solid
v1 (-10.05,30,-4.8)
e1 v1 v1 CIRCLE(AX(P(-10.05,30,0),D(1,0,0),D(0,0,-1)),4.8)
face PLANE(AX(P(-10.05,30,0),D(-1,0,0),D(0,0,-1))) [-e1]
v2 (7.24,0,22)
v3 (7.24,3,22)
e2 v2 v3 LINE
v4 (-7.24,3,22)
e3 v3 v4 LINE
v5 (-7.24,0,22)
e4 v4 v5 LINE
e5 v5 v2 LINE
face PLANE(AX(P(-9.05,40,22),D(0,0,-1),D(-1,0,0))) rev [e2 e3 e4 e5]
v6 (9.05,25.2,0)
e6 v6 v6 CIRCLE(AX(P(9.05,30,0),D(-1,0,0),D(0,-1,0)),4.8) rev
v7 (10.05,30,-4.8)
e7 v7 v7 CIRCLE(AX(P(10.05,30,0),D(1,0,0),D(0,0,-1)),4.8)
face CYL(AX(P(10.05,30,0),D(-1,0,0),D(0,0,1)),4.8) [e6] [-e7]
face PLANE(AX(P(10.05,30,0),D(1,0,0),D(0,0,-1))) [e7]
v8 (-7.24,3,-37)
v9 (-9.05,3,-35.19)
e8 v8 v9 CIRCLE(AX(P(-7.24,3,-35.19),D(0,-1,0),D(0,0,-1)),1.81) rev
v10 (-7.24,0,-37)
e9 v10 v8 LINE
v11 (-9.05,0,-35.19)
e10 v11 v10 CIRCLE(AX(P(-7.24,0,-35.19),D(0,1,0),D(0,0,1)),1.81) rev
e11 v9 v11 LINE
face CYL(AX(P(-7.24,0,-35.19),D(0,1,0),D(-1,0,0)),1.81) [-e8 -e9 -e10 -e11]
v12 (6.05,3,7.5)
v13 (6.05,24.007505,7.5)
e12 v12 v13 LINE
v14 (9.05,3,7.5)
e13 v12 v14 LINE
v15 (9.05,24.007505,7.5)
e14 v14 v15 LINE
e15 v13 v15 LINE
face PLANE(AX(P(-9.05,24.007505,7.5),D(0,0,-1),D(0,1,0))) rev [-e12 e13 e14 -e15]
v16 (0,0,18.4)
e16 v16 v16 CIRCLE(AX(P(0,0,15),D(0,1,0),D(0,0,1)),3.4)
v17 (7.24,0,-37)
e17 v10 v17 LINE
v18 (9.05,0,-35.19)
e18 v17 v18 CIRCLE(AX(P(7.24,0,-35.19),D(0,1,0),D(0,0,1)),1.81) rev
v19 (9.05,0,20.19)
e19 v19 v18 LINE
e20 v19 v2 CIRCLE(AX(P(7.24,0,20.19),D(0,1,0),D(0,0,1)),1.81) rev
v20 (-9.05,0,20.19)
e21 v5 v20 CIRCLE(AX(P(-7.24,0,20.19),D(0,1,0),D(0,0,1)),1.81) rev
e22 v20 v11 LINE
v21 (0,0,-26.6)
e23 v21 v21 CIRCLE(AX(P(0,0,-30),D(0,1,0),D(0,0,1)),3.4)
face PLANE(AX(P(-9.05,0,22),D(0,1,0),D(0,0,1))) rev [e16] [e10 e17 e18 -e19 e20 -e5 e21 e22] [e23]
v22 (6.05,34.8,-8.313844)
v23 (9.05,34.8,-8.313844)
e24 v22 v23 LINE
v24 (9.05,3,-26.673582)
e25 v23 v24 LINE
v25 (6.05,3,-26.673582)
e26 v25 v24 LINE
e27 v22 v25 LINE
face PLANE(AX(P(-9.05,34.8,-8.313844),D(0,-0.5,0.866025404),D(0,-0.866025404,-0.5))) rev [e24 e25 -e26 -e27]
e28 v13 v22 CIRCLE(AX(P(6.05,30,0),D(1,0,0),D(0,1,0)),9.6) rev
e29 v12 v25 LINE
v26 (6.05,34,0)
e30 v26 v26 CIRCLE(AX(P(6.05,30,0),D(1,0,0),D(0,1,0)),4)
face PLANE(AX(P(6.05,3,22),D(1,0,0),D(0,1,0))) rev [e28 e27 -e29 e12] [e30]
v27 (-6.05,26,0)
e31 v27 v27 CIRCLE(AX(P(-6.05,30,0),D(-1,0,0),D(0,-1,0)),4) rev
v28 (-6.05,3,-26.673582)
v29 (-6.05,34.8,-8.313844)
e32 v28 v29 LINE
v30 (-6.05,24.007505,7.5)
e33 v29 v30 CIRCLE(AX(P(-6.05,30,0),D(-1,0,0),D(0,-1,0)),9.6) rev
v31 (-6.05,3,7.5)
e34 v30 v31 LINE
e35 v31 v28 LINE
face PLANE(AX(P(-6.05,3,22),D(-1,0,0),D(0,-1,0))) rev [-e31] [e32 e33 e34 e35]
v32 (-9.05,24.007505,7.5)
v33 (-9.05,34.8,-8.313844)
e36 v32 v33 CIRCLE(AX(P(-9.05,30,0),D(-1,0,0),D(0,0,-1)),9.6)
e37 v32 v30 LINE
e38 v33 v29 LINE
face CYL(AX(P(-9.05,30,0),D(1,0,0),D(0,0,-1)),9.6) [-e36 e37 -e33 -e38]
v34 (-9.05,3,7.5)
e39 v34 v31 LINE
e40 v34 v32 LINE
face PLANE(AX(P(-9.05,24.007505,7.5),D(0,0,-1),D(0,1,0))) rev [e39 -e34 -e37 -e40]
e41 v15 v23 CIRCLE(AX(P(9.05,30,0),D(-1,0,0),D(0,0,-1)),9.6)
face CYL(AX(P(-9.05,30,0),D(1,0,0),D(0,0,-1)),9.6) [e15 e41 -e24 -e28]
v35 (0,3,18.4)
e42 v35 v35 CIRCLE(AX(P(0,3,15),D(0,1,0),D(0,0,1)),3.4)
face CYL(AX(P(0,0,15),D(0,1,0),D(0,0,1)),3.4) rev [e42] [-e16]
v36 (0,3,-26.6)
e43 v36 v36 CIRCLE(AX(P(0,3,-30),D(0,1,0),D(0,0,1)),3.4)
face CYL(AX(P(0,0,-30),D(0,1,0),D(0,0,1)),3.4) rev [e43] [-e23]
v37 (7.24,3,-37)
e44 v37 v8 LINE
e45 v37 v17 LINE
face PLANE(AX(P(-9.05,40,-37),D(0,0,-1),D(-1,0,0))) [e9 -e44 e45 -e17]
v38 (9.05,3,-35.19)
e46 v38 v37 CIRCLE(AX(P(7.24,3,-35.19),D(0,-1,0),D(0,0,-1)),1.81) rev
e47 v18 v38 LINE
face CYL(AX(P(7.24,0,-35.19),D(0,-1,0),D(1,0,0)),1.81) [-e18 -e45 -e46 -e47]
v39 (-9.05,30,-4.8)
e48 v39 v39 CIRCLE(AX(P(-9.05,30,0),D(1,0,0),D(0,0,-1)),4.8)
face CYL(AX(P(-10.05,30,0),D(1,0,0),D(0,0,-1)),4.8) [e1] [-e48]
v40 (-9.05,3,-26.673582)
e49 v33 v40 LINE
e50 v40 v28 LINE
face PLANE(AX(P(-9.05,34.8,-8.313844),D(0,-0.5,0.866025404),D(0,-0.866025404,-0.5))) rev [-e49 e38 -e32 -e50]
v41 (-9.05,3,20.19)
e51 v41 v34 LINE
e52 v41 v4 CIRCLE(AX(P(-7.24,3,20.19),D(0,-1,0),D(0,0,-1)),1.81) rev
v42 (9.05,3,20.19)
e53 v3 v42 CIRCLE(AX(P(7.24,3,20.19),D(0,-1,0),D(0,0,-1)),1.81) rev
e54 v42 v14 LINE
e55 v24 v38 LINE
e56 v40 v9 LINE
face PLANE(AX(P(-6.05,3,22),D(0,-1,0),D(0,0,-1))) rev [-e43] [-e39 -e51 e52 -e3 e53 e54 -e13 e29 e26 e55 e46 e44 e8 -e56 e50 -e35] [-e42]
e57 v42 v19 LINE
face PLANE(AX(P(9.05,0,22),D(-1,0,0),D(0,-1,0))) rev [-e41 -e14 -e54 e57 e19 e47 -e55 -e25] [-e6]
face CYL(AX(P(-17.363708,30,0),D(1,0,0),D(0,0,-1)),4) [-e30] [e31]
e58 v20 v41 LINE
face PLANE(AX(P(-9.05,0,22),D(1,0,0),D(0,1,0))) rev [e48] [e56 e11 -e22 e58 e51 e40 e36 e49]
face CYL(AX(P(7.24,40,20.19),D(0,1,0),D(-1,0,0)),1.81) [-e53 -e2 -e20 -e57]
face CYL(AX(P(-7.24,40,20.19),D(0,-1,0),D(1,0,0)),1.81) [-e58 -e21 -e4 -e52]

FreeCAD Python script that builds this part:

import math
import FreeCAD as App
import Part
import Sketcher
Q = App.Units.Quantity


def edges_at(feature, points):
    """Names of the edges that pass closest to the given points."""
    edges = feature.Shape.Edges
    near = lambda p: min(range(len(edges)), key=lambda i: edges[i].distToShape(Part.Vertex(*p))[0])
    return sorted({f"Edge{near(p) + 1}" for p in points})


def add_polygon(sketch, points):
    """Adds a closed chain of lines whose ends are joined by coincident constraints."""
    first, n = sketch.GeometryCount, len(points)
    for a, b in zip(points, points[1:] + points[:1]):
        sketch.addGeometry(Part.LineSegment(App.Vector(*a, 0), App.Vector(*b, 0)), False)
    for i in range(n):
        sketch.addConstraint(Sketcher.Constraint("Coincident", first + i, 2, first + (i + 1) % n, 1))

doc = App.newDocument("Part")
body = doc.addObject("PartDesign::Body", "Body")

# Sketch on XY plane
sketch1 = body.newObject("Sketcher::SketchObject", "Sketch")
sketch1.AttachmentSupport = (doc.getObject("XY_Plane"), [""])
sketch1.MapMode = "FlatFace"
sketch1.AttachmentOffset = App.Placement(App.Vector(0, 0, -37), App.Rotation())
add_polygon(sketch1, [(-6.05, 3), (-6.05, 40), (-9.05, 40), (-9.05, 0), (9.05, 0), (9.05, 40), (6.05, 40), (6.05, 3)])  # lines 0-7
sketch1.addConstraint([
    Sketcher.Constraint("Vertical", 0),
    Sketcher.Constraint("Horizontal", 1),
    Sketcher.Constraint("Vertical", 2),
    Sketcher.Constraint("Horizontal", 3),
    Sketcher.Constraint("Vertical", 4),
    Sketcher.Constraint("Horizontal", 5),
    Sketcher.Constraint("Vertical", 6),
    Sketcher.Constraint("Horizontal", 7),
    Sketcher.Constraint("Symmetric", 2, 2, 3, 2, -1, 1),
    Sketcher.Constraint("Symmetric", 0, 2, 5, 2, -2),
    Sketcher.Constraint("DistanceX", 1, 2, 1, 1, Q("3 mm")),
    Sketcher.Constraint("DistanceY", 0, 1, 0, 2, Q("37 mm")),
    Sketcher.Constraint("DistanceY", 2, 2, 2, 1, Q("40 mm")),
    Sketcher.Constraint("DistanceX", 3, 1, 3, 2, Q("18.1 mm")),
])
pad1 = body.newObject("PartDesign::Pad", "Pad")
pad1.Profile = sketch1
pad1.Length = 59

# Sketch on YZ plane
sketch2 = body.newObject("Sketcher::SketchObject", "Sketch001")
sketch2.AttachmentSupport = (doc.getObject("YZ_Plane"), [""])
sketch2.MapMode = "FlatFace"
sketch2.AttachmentOffset = App.Placement(App.Vector(0, 0, 9.05), App.Rotation())
sketch2.addGeometry([
    Part.LineSegment(App.Vector(3, 7.5, 0), App.Vector(24.007505, 7.5, 0)),  # 0
    Part.ArcOfCircle(Part.Circle(App.Vector(30, 0, 0), App.Vector(0, 0, 1), 9.6), math.radians(-60), math.radians(128.624833)),  # 1
    Part.LineSegment(App.Vector(34.8, -8.313844, 0), App.Vector(3, -26.673582, 0)),  # 2
    Part.LineSegment(App.Vector(3, -26.673582, 0), App.Vector(3, -37, 0)),  # 3
    Part.LineSegment(App.Vector(3, -37, 0), App.Vector(40, -37, 0)),  # 4
    Part.LineSegment(App.Vector(40, -37, 0), App.Vector(40, 22, 0)),  # 5
    Part.LineSegment(App.Vector(40, 22, 0), App.Vector(3, 22, 0)),  # 6
    Part.LineSegment(App.Vector(3, 22, 0), App.Vector(3, 7.5, 0)),  # 7
], False)
sketch2.addConstraint([
    Sketcher.Constraint("Coincident", 0, 2, 1, 2),
    Sketcher.Constraint("Tangent", 1, 1, 2, 1),
    Sketcher.Constraint("Coincident", 2, 2, 3, 1),
    Sketcher.Constraint("Coincident", 3, 2, 4, 1),
    Sketcher.Constraint("Coincident", 4, 2, 5, 1),
    Sketcher.Constraint("Coincident", 5, 2, 6, 1),
    Sketcher.Constraint("Coincident", 6, 2, 7, 1),
    Sketcher.Constraint("Coincident", 7, 2, 0, 1),
    Sketcher.Constraint("Horizontal", 0),
    Sketcher.Constraint("Vertical", 3),
    Sketcher.Constraint("Horizontal", 4),
    Sketcher.Constraint("Vertical", 5),
    Sketcher.Constraint("Horizontal", 6),
    Sketcher.Constraint("Vertical", 7),
    Sketcher.Constraint("PointOnObject", 1, 3, -1),
    Sketcher.Constraint("Vertical", 3, 2, 6, 2),
    Sketcher.Constraint("Radius", 1, Q("9.6 mm")),
    Sketcher.Constraint("DistanceX", 4, 1, 4, 2, Q("37 mm")),
    Sketcher.Constraint("DistanceY", 5, 1, 5, 2, Q("59 mm")),
    Sketcher.Constraint("Angle", 2, Q("-150 deg")),
    Sketcher.Constraint("DistanceY", 7, 2, 7, 1, Q("14.5 mm")),
    Sketcher.Constraint("DistanceX", -1, 1, 1, 3, Q("30 mm")),
    Sketcher.Constraint("DistanceX", -1, 1, 2, 2, Q("3 mm")),
    Sketcher.Constraint("DistanceY", 3, 2, -1, 1, Q("37 mm")),
])
pocket1 = body.newObject("PartDesign::Pocket", "Pocket")
pocket1.Profile = sketch2
pocket1.Type = "ThroughAll"

# Sketch on YZ plane
sketch3 = body.newObject("Sketcher::SketchObject", "Sketch002")
sketch3.AttachmentSupport = (doc.getObject("YZ_Plane"), [""])
sketch3.MapMode = "FlatFace"
sketch3.AttachmentOffset = App.Placement(App.Vector(0, 0, 9.05), App.Rotation())
sketch3.addGeometry(Part.Circle(App.Vector(30, 0, 0), App.Vector(0, 0, 1), 4), False)
sketch3.addConstraint([
    Sketcher.Constraint("PointOnObject", 0, 3, -1),
    Sketcher.Constraint("Diameter", 0, Q("8 mm")),
    Sketcher.Constraint("DistanceX", -1, 1, 0, 3, Q("30 mm")),
])
pad2 = body.newObject("PartDesign::Pad", "Pad001")
pad2.Profile = sketch3
pad2.Length = 15.1
pad2.Reversed = True

# Sketch on YZ plane
sketch4 = body.newObject("Sketcher::SketchObject", "Sketch003")
sketch4.AttachmentSupport = (doc.getObject("YZ_Plane"), [""])
sketch4.MapMode = "FlatFace"
sketch4.AttachmentOffset = App.Placement(App.Vector(0, 0, 9.05), App.Rotation())
sketch4.addGeometry(Part.Circle(App.Vector(30, 0, 0), App.Vector(0, 0, 1), 4.8), False)
sketch4.addConstraint([
    Sketcher.Constraint("PointOnObject", 0, 3, -1),
    Sketcher.Constraint("Diameter", 0, Q("9.6 mm")),
    Sketcher.Constraint("DistanceX", -1, 1, 0, 3, Q("30 mm")),
])
pad3 = body.newObject("PartDesign::Pad", "Pad002")
pad3.Profile = sketch4
pad3.Length = 1
doc.recompute()

mirrored = body.newObject("PartDesign::Mirrored", "Mirrored")
mirrored.Originals = [pad3]
mirrored.MirrorPlane = (doc.getObject("YZ_Plane"), [""])
body.Tip = mirrored
doc.recompute()

fillet = body.newObject("PartDesign::Fillet", "Fillet")
fillet.Base = (mirrored, edges_at(mirrored, [
    (9.05, 1.5, 22),
    (-9.05, 1.5, -37),
    (-9.05, 1.5, 22),
    (9.05, 1.5, -37),
]))
fillet.Radius = 1.81

# Sketch on XZ plane
sketch5 = body.newObject("Sketcher::SketchObject", "Sketch004")
sketch5.AttachmentSupport = (doc.getObject("XZ_Plane"), [""])
sketch5.MapMode = "FlatFace"
sketch5.AttachmentOffset = App.Placement(App.Vector(0, 0, -3), App.Rotation())
sketch5.addGeometry([
    Part.Circle(App.Vector(0, 15, 0), App.Vector(0, 0, 1), 3.4),
    Part.Circle(App.Vector(0, -30, 0), App.Vector(0, 0, 1), 3.4),
], False)
sketch5.addConstraint([
    Sketcher.Constraint("Equal", 0, 1),
    Sketcher.Constraint("PointOnObject", 0, 3, -2),
    Sketcher.Constraint("PointOnObject", 1, 3, -2),
    Sketcher.Constraint("Diameter", 0, Q("6.8 mm")),
    Sketcher.Constraint("DistanceY", -1, 1, 0, 3, Q("15 mm")),
    Sketcher.Constraint("DistanceY", 1, 3, -1, 1, Q("30 mm")),
])
pocket2 = body.newObject("PartDesign::Pocket", "Pocket001")
pocket2.Profile = sketch5
pocket2.Type = "ThroughAll"
pocket2.Reversed = True

doc.recompute()
